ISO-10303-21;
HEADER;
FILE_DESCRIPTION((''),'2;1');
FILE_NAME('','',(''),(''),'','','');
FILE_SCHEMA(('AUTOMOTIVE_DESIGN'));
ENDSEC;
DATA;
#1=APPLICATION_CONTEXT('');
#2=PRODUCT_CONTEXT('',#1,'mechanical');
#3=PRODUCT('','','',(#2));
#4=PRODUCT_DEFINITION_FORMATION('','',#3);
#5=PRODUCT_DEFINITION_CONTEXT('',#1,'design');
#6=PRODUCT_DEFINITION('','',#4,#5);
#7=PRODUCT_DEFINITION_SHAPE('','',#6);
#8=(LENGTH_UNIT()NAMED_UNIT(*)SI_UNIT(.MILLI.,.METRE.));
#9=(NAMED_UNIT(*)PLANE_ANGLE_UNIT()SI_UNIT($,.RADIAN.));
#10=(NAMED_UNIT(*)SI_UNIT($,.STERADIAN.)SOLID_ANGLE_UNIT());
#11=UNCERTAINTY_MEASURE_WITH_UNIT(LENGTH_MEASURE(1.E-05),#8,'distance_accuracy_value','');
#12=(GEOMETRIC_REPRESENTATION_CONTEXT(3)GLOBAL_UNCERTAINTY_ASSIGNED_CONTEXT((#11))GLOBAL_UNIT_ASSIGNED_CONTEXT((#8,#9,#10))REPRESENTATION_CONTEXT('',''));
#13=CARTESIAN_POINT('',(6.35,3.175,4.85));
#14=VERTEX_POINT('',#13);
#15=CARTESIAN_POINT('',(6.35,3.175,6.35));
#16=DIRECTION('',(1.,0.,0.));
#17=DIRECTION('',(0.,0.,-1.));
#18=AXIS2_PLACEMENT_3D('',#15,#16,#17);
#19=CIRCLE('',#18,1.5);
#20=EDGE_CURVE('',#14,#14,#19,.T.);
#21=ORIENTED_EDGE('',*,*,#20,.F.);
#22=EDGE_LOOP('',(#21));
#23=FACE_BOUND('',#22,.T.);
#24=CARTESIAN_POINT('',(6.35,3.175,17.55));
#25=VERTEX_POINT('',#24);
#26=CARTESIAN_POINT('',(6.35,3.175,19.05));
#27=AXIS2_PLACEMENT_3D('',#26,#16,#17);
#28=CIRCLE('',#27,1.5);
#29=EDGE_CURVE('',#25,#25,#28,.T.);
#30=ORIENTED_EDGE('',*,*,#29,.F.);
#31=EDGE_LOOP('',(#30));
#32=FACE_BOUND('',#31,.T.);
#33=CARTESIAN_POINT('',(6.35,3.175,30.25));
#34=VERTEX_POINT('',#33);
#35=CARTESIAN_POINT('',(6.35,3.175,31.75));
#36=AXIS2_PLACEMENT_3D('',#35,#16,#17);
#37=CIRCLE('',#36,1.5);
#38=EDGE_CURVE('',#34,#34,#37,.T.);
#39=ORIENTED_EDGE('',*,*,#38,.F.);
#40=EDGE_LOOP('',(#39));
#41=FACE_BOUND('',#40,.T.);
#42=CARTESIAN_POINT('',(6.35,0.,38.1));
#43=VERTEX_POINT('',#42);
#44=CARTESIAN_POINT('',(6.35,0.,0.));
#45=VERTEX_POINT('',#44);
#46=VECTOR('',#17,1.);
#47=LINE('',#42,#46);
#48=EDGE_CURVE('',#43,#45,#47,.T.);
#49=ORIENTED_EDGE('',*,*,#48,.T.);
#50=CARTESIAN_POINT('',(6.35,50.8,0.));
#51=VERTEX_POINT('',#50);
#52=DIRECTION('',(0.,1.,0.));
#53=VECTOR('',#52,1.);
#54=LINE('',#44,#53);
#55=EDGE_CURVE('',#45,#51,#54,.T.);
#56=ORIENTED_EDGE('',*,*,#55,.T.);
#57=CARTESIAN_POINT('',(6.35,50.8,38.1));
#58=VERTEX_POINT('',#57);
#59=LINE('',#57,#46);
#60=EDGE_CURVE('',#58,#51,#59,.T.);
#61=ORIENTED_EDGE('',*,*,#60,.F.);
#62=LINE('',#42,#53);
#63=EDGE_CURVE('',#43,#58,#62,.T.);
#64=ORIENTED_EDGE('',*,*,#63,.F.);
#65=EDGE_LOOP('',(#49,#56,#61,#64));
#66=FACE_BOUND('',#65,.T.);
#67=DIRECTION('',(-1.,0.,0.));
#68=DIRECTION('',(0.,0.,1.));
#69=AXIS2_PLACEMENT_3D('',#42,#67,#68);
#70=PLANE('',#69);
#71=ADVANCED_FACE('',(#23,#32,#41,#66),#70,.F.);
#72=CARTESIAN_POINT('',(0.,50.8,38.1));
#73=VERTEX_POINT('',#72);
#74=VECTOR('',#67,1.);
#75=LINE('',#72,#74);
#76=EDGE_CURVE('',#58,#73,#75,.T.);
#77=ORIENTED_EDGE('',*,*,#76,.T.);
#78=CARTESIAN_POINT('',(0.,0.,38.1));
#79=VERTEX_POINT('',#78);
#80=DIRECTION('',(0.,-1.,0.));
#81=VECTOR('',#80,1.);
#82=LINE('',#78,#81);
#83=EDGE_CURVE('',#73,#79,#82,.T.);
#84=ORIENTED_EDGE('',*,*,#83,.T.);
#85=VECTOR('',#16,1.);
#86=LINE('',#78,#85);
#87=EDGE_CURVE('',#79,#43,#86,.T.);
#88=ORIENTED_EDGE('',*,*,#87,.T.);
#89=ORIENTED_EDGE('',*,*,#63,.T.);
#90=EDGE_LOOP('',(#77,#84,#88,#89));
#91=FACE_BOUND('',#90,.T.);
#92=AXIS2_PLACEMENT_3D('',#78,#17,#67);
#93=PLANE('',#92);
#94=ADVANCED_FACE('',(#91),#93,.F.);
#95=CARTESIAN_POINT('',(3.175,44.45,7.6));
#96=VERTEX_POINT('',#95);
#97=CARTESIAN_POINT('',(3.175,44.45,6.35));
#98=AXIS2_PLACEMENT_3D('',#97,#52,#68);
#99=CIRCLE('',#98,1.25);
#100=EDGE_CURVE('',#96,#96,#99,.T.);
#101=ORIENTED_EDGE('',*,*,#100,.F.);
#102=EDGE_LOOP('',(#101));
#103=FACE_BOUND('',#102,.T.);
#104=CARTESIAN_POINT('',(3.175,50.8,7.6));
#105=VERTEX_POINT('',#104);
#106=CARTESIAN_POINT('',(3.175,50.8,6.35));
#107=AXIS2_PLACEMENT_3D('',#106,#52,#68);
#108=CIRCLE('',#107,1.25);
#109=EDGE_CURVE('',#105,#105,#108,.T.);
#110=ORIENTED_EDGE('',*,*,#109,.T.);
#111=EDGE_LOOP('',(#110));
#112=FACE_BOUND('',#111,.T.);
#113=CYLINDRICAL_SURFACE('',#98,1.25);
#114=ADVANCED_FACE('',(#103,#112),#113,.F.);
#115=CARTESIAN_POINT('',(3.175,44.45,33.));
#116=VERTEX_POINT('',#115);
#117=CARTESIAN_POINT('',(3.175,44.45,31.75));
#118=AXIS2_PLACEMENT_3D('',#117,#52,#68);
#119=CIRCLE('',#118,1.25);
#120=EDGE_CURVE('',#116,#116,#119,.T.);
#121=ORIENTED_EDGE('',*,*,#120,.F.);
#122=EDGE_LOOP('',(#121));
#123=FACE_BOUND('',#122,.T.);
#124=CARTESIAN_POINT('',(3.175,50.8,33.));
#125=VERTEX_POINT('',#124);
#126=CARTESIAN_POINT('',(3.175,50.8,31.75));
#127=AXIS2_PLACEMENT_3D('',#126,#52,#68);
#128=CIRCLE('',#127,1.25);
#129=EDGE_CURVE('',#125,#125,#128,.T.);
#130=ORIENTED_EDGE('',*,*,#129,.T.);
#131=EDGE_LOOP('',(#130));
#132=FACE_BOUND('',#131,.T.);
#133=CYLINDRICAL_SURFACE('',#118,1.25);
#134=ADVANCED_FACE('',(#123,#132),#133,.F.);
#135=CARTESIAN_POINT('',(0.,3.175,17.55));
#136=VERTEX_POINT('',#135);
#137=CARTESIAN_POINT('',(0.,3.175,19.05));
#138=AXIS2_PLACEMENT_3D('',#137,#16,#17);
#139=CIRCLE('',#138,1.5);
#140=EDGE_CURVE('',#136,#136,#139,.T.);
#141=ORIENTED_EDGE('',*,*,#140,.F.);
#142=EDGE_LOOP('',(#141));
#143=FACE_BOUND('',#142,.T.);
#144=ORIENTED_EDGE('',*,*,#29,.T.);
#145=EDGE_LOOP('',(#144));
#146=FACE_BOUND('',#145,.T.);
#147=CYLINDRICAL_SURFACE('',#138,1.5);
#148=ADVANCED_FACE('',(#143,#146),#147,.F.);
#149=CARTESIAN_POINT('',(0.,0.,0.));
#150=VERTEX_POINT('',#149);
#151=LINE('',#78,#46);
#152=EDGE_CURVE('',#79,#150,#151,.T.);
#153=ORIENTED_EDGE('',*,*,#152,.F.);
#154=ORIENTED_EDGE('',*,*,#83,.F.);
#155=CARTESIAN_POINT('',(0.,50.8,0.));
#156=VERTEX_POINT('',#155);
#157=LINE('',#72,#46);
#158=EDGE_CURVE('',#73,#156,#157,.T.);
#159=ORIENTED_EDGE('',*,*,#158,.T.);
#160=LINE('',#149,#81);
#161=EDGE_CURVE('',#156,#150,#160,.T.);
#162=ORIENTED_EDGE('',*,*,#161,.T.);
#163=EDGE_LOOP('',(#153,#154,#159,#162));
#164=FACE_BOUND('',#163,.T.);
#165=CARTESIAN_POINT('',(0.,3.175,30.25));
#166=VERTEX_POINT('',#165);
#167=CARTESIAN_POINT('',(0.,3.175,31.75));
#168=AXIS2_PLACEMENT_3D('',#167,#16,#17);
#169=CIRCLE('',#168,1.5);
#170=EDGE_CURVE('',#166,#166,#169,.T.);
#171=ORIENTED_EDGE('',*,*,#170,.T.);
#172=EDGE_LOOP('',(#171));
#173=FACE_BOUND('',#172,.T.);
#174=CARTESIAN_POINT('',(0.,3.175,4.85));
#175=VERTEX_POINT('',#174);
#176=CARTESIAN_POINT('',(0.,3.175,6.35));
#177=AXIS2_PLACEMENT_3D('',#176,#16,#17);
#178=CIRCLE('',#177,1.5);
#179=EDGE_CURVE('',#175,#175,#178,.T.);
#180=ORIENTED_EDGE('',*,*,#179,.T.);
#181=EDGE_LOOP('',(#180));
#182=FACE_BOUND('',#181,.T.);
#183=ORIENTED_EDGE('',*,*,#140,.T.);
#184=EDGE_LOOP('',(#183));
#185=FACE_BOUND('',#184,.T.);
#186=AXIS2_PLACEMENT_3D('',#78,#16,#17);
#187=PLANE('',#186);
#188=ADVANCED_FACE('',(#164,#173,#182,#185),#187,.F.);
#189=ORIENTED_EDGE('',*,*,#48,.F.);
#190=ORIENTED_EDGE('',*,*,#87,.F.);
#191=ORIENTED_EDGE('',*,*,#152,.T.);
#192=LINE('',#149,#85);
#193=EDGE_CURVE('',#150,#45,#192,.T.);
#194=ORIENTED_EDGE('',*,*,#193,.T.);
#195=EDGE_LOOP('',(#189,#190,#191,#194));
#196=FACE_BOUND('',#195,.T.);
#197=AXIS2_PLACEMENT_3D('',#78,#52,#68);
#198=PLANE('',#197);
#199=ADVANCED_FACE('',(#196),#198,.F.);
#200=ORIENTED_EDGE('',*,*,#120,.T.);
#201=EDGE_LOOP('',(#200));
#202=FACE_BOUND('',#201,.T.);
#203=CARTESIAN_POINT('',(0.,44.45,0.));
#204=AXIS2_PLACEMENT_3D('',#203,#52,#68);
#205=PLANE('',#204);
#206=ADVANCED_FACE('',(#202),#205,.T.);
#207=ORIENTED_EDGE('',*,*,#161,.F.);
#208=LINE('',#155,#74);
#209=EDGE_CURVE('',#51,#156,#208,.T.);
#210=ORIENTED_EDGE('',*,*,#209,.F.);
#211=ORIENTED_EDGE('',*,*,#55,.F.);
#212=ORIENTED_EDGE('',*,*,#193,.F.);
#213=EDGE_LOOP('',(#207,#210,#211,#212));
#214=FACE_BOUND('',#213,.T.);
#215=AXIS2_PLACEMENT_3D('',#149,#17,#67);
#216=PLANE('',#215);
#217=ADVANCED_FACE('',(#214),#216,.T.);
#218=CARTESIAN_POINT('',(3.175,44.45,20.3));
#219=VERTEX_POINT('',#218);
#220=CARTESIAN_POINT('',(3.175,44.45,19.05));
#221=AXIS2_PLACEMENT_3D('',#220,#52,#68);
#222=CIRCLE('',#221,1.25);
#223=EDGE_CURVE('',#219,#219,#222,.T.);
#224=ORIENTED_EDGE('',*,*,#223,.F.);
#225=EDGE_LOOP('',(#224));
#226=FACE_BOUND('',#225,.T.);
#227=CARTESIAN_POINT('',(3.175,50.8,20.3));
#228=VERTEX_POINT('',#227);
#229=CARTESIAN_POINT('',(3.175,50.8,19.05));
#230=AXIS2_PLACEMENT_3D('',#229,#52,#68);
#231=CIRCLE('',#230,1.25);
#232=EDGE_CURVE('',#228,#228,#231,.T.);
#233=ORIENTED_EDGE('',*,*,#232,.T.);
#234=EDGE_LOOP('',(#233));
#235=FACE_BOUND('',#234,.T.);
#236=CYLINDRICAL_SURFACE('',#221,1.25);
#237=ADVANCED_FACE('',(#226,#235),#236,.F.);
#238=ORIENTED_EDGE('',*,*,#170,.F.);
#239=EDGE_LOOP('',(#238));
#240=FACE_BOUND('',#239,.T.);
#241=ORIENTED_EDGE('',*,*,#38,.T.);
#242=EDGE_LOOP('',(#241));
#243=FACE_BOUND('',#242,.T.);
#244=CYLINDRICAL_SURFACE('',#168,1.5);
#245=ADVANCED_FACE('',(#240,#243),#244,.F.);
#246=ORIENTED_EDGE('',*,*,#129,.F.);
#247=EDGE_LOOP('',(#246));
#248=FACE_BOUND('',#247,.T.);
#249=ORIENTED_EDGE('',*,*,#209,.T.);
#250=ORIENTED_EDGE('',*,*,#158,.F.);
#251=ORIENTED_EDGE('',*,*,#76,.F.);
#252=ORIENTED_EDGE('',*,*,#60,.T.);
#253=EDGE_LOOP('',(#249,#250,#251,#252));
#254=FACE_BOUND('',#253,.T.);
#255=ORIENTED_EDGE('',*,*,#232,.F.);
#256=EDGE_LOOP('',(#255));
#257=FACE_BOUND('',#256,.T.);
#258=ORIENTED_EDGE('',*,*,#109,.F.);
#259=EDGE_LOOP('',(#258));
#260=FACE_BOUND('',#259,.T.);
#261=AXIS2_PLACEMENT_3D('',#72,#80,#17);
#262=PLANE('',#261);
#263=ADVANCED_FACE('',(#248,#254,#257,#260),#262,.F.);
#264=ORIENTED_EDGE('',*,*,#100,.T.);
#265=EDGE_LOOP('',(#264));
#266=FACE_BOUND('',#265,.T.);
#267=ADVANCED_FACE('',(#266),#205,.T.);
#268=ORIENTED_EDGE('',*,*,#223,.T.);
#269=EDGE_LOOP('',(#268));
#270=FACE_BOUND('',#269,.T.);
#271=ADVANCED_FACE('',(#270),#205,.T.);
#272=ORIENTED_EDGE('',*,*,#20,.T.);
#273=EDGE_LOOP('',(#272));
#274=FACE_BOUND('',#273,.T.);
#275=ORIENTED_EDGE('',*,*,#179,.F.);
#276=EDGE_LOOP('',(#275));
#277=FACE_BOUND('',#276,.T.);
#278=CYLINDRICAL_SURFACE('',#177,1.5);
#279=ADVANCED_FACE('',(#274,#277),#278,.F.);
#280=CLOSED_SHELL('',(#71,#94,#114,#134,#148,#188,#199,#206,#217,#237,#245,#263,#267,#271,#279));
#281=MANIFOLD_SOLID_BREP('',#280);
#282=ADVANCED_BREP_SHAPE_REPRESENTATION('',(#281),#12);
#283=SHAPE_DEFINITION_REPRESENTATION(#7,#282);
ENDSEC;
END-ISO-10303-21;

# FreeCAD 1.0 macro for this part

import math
import FreeCAD as App
import Part
import Sketcher

V = App.Vector
Q = App.Units.Quantity


def add_polygon(sketch, points):
    """Adds a closed chain of lines whose ends are joined by coincident constraints."""
    first, n = sketch.GeometryCount, len(points)
    for a, b in zip(points, points[1:] + points[:1]):
        sketch.addGeometry(Part.LineSegment(App.Vector(*a, 0), App.Vector(*b, 0)), False)
    for i in range(n):
        sketch.addConstraint(Sketcher.Constraint("Coincident", first + i, 2, first + (i + 1) % n, 1))

doc = App.newDocument("Part")
params = doc.addObject("Spreadsheet::Sheet", "Params")
for row, (alias, value) in enumerate([
    ("sketch1_height", "2 in"),
    ("sketch1_width", "0.25 in"),
    ("pad1_length", "1.5 in"),
    ("pocket1_length", "0.25 in"),
    ("pocket2_length", "0.25 in"),
], start=1):
    params.set(f"A{row}", alias)
    params.set(f"B{row}", "=" + value)
    params.setAlias(f"B{row}", alias)

body = doc.addObject("PartDesign::Body", "Body")

sketch1 = doc.addObject("Sketcher::SketchObject", "Sketch")
body.addObject(sketch1)
sketch1.AttachmentSupport = (doc.XY_Plane, [""])
sketch1.MapMode = "FlatFace"
add_polygon(sketch1, [(0, 51), (0, 0), (6, 0), (6, 51)])
sketch1.addConstraint([
    Sketcher.Constraint("Vertical", 0),
    Sketcher.Constraint("Horizontal", 1),
    Sketcher.Constraint("Vertical", 2),
    Sketcher.Constraint("Horizontal", 3),
    Sketcher.Constraint("Coincident", 0, 2, -1, 1),
    Sketcher.Constraint("DistanceY", 0, 2, 0, 1, Q("2 in")),
    Sketcher.Constraint("DistanceX", 1, 1, 1, 2, Q("0.25 in")),
])
sketch1.setExpression("Constraints[9]", "Params.sketch1_height")
sketch1.setExpression("Constraints[10]", "Params.sketch1_width")
pad1 = doc.addObject("PartDesign::Pad", "Pad")
body.addObject(pad1)
pad1.Profile = sketch1
pad1.setExpression("Length", "Params.pad1_length")

sketch2 = doc.addObject("Sketcher::SketchObject", "Sketch001")
body.addObject(sketch2)
sketch2.AttachmentSupport = (doc.YZ_Plane, [""])
sketch2.MapMode = "FlatFace"
sketch2.AttachmentOffset = App.Placement(V(0, 0, 0.25 * 25.4), App.Rotation())
sketch2.addGeometry([
    Part.Circle(V(3.2, 6.3, 0), V(0, 0, 1), 1.5),
    Part.Circle(V(3.2, 19.1, 0), V(0, 0, 1), 1.5),
    Part.Circle(V(3.2, 31.8, 0), V(0, 0, 1), 1.5),
], False)
sketch2.addConstraint([
    Sketcher.Constraint("Equal", 0, 1),
    Sketcher.Constraint("Equal", 1, 2),
    Sketcher.Constraint("Vertical", 0, 3, 1, 3),
    Sketcher.Constraint("Vertical", 1, 3, 2, 3),
    Sketcher.Constraint("DistanceY", 0, 3, 2, 3, Q("1 in")),
    Sketcher.Constraint("DistanceY", 0, 3, 1, 3, Q("0.5 in")),
    Sketcher.Constraint("Diameter", 0, 3.0),
    Sketcher.Constraint("DistanceY", -1, 1, 0, 3, Q("0.25 in")),
    Sketcher.Constraint("DistanceX", -1, 1, 0, 3, Q("0.125 in")),
])
pocket1 = doc.addObject("PartDesign::Pocket", "Pocket")
body.addObject(pocket1)
pocket1.Profile = sketch2
pocket1.setExpression("Length", "Params.pocket1_length")

sketch3 = doc.addObject("Sketcher::SketchObject", "Sketch002")
body.addObject(sketch3)
sketch3.AttachmentSupport = (doc.XZ_Plane, [""])
sketch3.MapMode = "FlatFace"
sketch3.AttachmentOffset = App.Placement(V(0, 0, -2 * 25.4), App.Rotation())
sketch3.addGeometry([
    Part.ArcOfCircle(Part.Circle(V(3.2, 6.4, 0), V(0, 0, 1), 1.3), math.radians(-90), math.radians(0)),
    Part.ArcOfCircle(Part.Circle(V(3.2, 6.3, 0), V(0, 0, 1), 1.2), math.radians(90), math.radians(270)),
    Part.ArcOfCircle(Part.Circle(V(3.2, 6.3, 0), V(0, 0, 1), 1.3), math.radians(0), math.radians(90)),
    Part.ArcOfCircle(Part.Circle(V(3.2, 19.1, 0), V(0, 0, 1), 1.3), math.radians(-90), math.radians(0)),
    Part.ArcOfCircle(Part.Circle(V(3.2, 19.1, 0), V(0, 0, 1), 1.2), math.radians(90), math.radians(270)),
    Part.ArcOfCircle(Part.Circle(V(3.2, 19, 0), V(0, 0, 1), 1.3), math.radians(0), math.radians(90)),
    Part.ArcOfCircle(Part.Circle(V(3.2, 31.8, 0), V(0, 0, 1), 1.2), math.radians(90), math.radians(270)),
    Part.ArcOfCircle(Part.Circle(V(3.2, 31.7, 0), V(0, 0, 1), 1.3), math.radians(0), math.radians(90)),
    Part.ArcOfCircle(Part.Circle(V(3.2, 31.8, 0), V(0, 0, 1), 1.3), math.radians(-90), math.radians(0)),
], False)
sketch3.addConstraint([
    Sketcher.Constraint("Tangent", 0, 1, 1, 2),
    Sketcher.Constraint("Tangent", 1, 1, 2, 2),
    Sketcher.Constraint("Tangent", 2, 1, 0, 2),
    Sketcher.Constraint("Tangent", 3, 1, 4, 2),
    Sketcher.Constraint("Tangent", 4, 1, 5, 2),
    Sketcher.Constraint("Tangent", 5, 1, 3, 2),
    Sketcher.Constraint("Tangent", 6, 1, 7, 2),
    Sketcher.Constraint("Tangent", 7, 1, 8, 2),
    Sketcher.Constraint("Tangent", 8, 1, 6, 2),
    Sketcher.Constraint("Equal", 2, 3),
    Sketcher.Constraint("Equal", 5, 6),
    Sketcher.Constraint("Horizontal", 1, 3, 2, 1),
    Sketcher.Constraint("Horizontal", 4, 3, 5, 1),
    Sketcher.Constraint("Horizontal", 8, 3, 7, 1),
    Sketcher.Constraint("Vertical", 2, 3, 3, 3),
    Sketcher.Constraint("Vertical", 5, 3, 6, 3),
    Sketcher.Constraint("Vertical", 8, 3, 0, 1),
    Sketcher.Constraint("Vertical", 0, 1, 1, 1),
    Sketcher.Constraint("Vertical", 1, 1, 3, 1),
    Sketcher.Constraint("Vertical", 3, 1, 4, 1),
    Sketcher.Constraint("Vertical", 4, 1, 6, 1),
    Sketcher.Constraint("Vertical", 6, 1, 8, 1),
    Sketcher.Constraint("DistanceY", 0, 3, 6, 3, Q("1 in")),
    Sketcher.Constraint("DistanceY", 0, 3, 3, 3, Q("0.5 in")),
    Sketcher.Constraint("DistanceY", -1, 1, 0, 3, Q("0.25 in")),
    Sketcher.Constraint("Radius", 0, 1.25),
    Sketcher.Constraint("DistanceX", -1, 1, 0, 3, Q("0.125 in")),
])
pocket2 = doc.addObject("PartDesign::Pocket", "Pocket001")
body.addObject(pocket2)
pocket2.Profile = sketch3
pocket2.setExpression("Length", "Params.pocket2_length")
pocket2.Reversed = True

doc.recompute()
